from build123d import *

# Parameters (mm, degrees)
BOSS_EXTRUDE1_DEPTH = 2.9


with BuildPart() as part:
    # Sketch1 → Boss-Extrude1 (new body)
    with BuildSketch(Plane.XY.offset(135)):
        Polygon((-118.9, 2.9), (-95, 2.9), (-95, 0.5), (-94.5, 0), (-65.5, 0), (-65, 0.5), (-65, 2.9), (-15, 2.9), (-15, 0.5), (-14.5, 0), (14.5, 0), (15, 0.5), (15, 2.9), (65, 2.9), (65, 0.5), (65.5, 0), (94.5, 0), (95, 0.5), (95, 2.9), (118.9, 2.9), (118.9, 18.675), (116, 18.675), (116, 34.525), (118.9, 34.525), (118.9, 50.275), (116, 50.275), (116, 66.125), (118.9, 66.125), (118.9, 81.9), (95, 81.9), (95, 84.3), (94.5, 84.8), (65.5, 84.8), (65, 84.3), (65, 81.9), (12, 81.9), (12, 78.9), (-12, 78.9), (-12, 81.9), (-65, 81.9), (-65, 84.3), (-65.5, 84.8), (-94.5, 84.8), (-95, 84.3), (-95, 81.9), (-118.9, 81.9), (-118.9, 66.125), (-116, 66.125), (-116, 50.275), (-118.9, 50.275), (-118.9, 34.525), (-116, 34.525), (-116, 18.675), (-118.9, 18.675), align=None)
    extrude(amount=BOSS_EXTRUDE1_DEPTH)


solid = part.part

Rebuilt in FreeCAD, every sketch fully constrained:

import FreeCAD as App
import Part
import Sketcher
from FreeCAD import Vector

doc = App.newDocument("Part")
params = doc.addObject("Spreadsheet::Sheet", "Params")
for row, (alias, value) in enumerate([
    ("sketch1_width", "29 mm"),
    ("sketch1_width2", "50 mm"),
    ("sketch1_width3", "53 mm"),
    ("sketch1_width4", "24 mm"),
    ("sketch1_height", "3 mm"),
    ("pad1_length", "2.9 mm"),
], start=1):
    params.set(f"A{row}", alias)
    params.set(f"B{row}", "=" + value)
    params.setAlias(f"B{row}", alias)

body = doc.addObject("PartDesign::Body", "Body")

sketch1 = body.newObject("Sketcher::SketchObject", "Sketch")
sketch1.AttachmentSupport = (doc.getObject("XY_Plane"), [""])
sketch1.MapMode = "FlatFace"
sketch1.AttachmentOffset = App.Placement(Vector(0, 0, 135), App.Rotation())
sketch1.addGeometry(Part.LineSegment(Vector(-118.9, 2.9, 0), Vector(-95, 2.9, 0)), False)
sketch1.addGeometry(Part.LineSegment(Vector(-95, 2.9, 0), Vector(-95, 0.5, 0)), False)
sketch1.addGeometry(Part.LineSegment(Vector(-95, 0.5, 0), Vector(-94.5, 0, 0)), False)
sketch1.addGeometry(Part.LineSegment(Vector(-94.5, 0, 0), Vector(-65.5, 0, 0)), False)
sketch1.addGeometry(Part.LineSegment(Vector(-65.5, 0, 0), Vector(-65, 0.5, 0)), False)
sketch1.addGeometry(Part.LineSegment(Vector(-65, 0.5, 0), Vector(-65, 2.9, 0)), False)
sketch1.addGeometry(Part.LineSegment(Vector(-65, 2.9, 0), Vector(-15, 2.9, 0)), False)
sketch1.addGeometry(Part.LineSegment(Vector(-15, 2.9, 0), Vector(-15, 0.5, 0)), False)
sketch1.addGeometry(Part.LineSegment(Vector(-15, 0.5, 0), Vector(-14.5, 0, 0)), False)
sketch1.addGeometry(Part.LineSegment(Vector(-14.5, 0, 0), Vector(14.5, 0, 0)), False)
sketch1.addGeometry(Part.LineSegment(Vector(14.5, 0, 0), Vector(15, 0.5, 0)), False)
sketch1.addGeometry(Part.LineSegment(Vector(15, 0.5, 0), Vector(15, 2.9, 0)), False)
sketch1.addGeometry(Part.LineSegment(Vector(15, 2.9, 0), Vector(65, 2.9, 0)), False)
sketch1.addGeometry(Part.LineSegment(Vector(65, 2.9, 0), Vector(65, 0.5, 0)), False)
sketch1.addGeometry(Part.LineSegment(Vector(65, 0.5, 0), Vector(65.5, 0, 0)), False)
sketch1.addGeometry(Part.LineSegment(Vector(65.5, 0, 0), Vector(94.5, 0, 0)), False)
sketch1.addGeometry(Part.LineSegment(Vector(94.5, 0, 0), Vector(95, 0.5, 0)), False)
sketch1.addGeometry(Part.LineSegment(Vector(95, 0.5, 0), Vector(95, 2.9, 0)), False)
sketch1.addGeometry(Part.LineSegment(Vector(95, 2.9, 0), Vector(118.9, 2.9, 0)), False)
sketch1.addGeometry(Part.LineSegment(Vector(118.9, 2.9, 0), Vector(118.9, 18.7, 0)), False)
sketch1.addGeometry(Part.LineSegment(Vector(118.9, 18.7, 0), Vector(116, 18.7, 0)), False)
sketch1.addGeometry(Part.LineSegment(Vector(116, 18.7, 0), Vector(116, 34.5, 0)), False)
sketch1.addGeometry(Part.LineSegment(Vector(116, 34.5, 0), Vector(118.9, 34.5, 0)), False)
sketch1.addGeometry(Part.LineSegment(Vector(118.9, 34.5, 0), Vector(118.9, 50.3, 0)), False)
sketch1.addGeometry(Part.LineSegment(Vector(118.9, 50.3, 0), Vector(116, 50.3, 0)), False)
sketch1.addGeometry(Part.LineSegment(Vector(116, 50.3, 0), Vector(116, 66.1, 0)), False)
sketch1.addGeometry(Part.LineSegment(Vector(116, 66.1, 0), Vector(118.9, 66.1, 0)), False)
sketch1.addGeometry(Part.LineSegment(Vector(118.9, 66.1, 0), Vector(118.9, 81.9, 0)), False)
sketch1.addGeometry(Part.LineSegment(Vector(118.9, 81.9, 0), Vector(95, 81.9, 0)), False)
sketch1.addGeometry(Part.LineSegment(Vector(95, 81.9, 0), Vector(95, 84.3, 0)), False)
sketch1.addGeometry(Part.LineSegment(Vector(95, 84.3, 0), Vector(94.5, 84.8, 0)), False)
sketch1.addGeometry(Part.LineSegment(Vector(94.5, 84.8, 0), Vector(65.5, 84.8, 0)), False)
sketch1.addGeometry(Part.LineSegment(Vector(65.5, 84.8, 0), Vector(65, 84.3, 0)), False)
sketch1.addGeometry(Part.LineSegment(Vector(65, 84.3, 0), Vector(65, 81.9, 0)), False)
sketch1.addGeometry(Part.LineSegment(Vector(65, 81.9, 0), Vector(12, 81.9, 0)), False)
sketch1.addGeometry(Part.LineSegment(Vector(12, 81.9, 0), Vector(12, 78.9, 0)), False)
sketch1.addGeometry(Part.LineSegment(Vector(12, 78.9, 0), Vector(-12, 78.9, 0)), False)
sketch1.addGeometry(Part.LineSegment(Vector(-12, 78.9, 0), Vector(-12, 81.9, 0)), False)
sketch1.addGeometry(Part.LineSegment(Vector(-12, 81.9, 0), Vector(-65, 81.9, 0)), False)
sketch1.addGeometry(Part.LineSegment(Vector(-65, 81.9, 0), Vector(-65, 84.3, 0)), False)
sketch1.addGeometry(Part.LineSegment(Vector(-65, 84.3, 0), Vector(-65.5, 84.8, 0)), False)
sketch1.addGeometry(Part.LineSegment(Vector(-65.5, 84.8, 0), Vector(-94.5, 84.8, 0)), False)
sketch1.addGeometry(Part.LineSegment(Vector(-94.5, 84.8, 0), Vector(-95, 84.3, 0)), False)
sketch1.addGeometry(Part.LineSegment(Vector(-95, 84.3, 0), Vector(-95, 81.9, 0)), False)
sketch1.addGeometry(Part.LineSegment(Vector(-95, 81.9, 0), Vector(-118.9, 81.9, 0)), False)
sketch1.addGeometry(Part.LineSegment(Vector(-118.9, 81.9, 0), Vector(-118.9, 66.1, 0)), False)
sketch1.addGeometry(Part.LineSegment(Vector(-118.9, 66.1, 0), Vector(-116, 66.1, 0)), False)
sketch1.addGeometry(Part.LineSegment(Vector(-116, 66.1, 0), Vector(-116, 50.3, 0)), False)
sketch1.addGeometry(Part.LineSegment(Vector(-116, 50.3, 0), Vector(-118.9, 50.3, 0)), False)
sketch1.addGeometry(Part.LineSegment(Vector(-118.9, 50.3, 0), Vector(-118.9, 34.5, 0)), False)
sketch1.addGeometry(Part.LineSegment(Vector(-118.9, 34.5, 0), Vector(-116, 34.5, 0)), False)
sketch1.addGeometry(Part.LineSegment(Vector(-116, 34.5, 0), Vector(-116, 18.7, 0)), False)
sketch1.addGeometry(Part.LineSegment(Vector(-116, 18.7, 0), Vector(-118.9, 18.7, 0)), False)
sketch1.addGeometry(Part.LineSegment(Vector(-118.9, 18.7, 0), Vector(-118.9, 2.9, 0)), False)
sketch1.addConstraint(Sketcher.Constraint("Coincident", 0, 2, 1, 1))
sketch1.addConstraint(Sketcher.Constraint("Coincident", 1, 2, 2, 1))
sketch1.addConstraint(Sketcher.Constraint("Coincident", 2, 2, 3, 1))
sketch1.addConstraint(Sketcher.Constraint("Coincident", 3, 2, 4, 1))
sketch1.addConstraint(Sketcher.Constraint("Coincident", 4, 2, 5, 1))
sketch1.addConstraint(Sketcher.Constraint("Coincident", 5, 2, 6, 1))
sketch1.addConstraint(Sketcher.Constraint("Coincident", 6, 2, 7, 1))
sketch1.addConstraint(Sketcher.Constraint("Coincident", 7, 2, 8, 1))
sketch1.addConstraint(Sketcher.Constraint("Coincident", 8, 2, 9, 1))
sketch1.addConstraint(Sketcher.Constraint("Coincident", 9, 2, 10, 1))
sketch1.addConstraint(Sketcher.Constraint("Coincident", 10, 2, 11, 1))
sketch1.addConstraint(Sketcher.Constraint("Coincident", 11, 2, 12, 1))
sketch1.addConstraint(Sketcher.Constraint("Coincident", 12, 2, 13, 1))
sketch1.addConstraint(Sketcher.Constraint("Coincident", 13, 2, 14, 1))
sketch1.addConstraint(Sketcher.Constraint("Coincident", 14, 2, 15, 1))
sketch1.addConstraint(Sketcher.Constraint("Coincident", 15, 2, 16, 1))
sketch1.addConstraint(Sketcher.Constraint("Coincident", 16, 2, 17, 1))
sketch1.addConstraint(Sketcher.Constraint("Coincident", 17, 2, 18, 1))
sketch1.addConstraint(Sketcher.Constraint("Coincident", 18, 2, 19, 1))
sketch1.addConstraint(Sketcher.Constraint("Coincident", 19, 2, 20, 1))
sketch1.addConstraint(Sketcher.Constraint("Coincident", 20, 2, 21, 1))
sketch1.addConstraint(Sketcher.Constraint("Coincident", 21, 2, 22, 1))
sketch1.addConstraint(Sketcher.Constraint("Coincident", 22, 2, 23, 1))
sketch1.addConstraint(Sketcher.Constraint("Coincident", 23, 2, 24, 1))
sketch1.addConstraint(Sketcher.Constraint("Coincident", 24, 2, 25, 1))
sketch1.addConstraint(Sketcher.Constraint("Coincident", 25, 2, 26, 1))
sketch1.addConstraint(Sketcher.Constraint("Coincident", 26, 2, 27, 1))
sketch1.addConstraint(Sketcher.Constraint("Coincident", 27, 2, 28, 1))
sketch1.addConstraint(Sketcher.Constraint("Coincident", 28, 2, 29, 1))
sketch1.addConstraint(Sketcher.Constraint("Coincident", 29, 2, 30, 1))
sketch1.addConstraint(Sketcher.Constraint("Coincident", 30, 2, 31, 1))
sketch1.addConstraint(Sketcher.Constraint("Coincident", 31, 2, 32, 1))
sketch1.addConstraint(Sketcher.Constraint("Coincident", 32, 2, 33, 1))
sketch1.addConstraint(Sketcher.Constraint("Coincident", 33, 2, 34, 1))
sketch1.addConstraint(Sketcher.Constraint("Coincident", 34, 2, 35, 1))
sketch1.addConstraint(Sketcher.Constraint("Coincident", 35, 2, 36, 1))
sketch1.addConstraint(Sketcher.Constraint("Coincident", 36, 2, 37, 1))
sketch1.addConstraint(Sketcher.Constraint("Coincident", 37, 2, 38, 1))
sketch1.addConstraint(Sketcher.Constraint("Coincident", 38, 2, 39, 1))
sketch1.addConstraint(Sketcher.Constraint("Coincident", 39, 2, 40, 1))
sketch1.addConstraint(Sketcher.Constraint("Coincident", 40, 2, 41, 1))
sketch1.addConstraint(Sketcher.Constraint("Coincident", 41, 2, 42, 1))
sketch1.addConstraint(Sketcher.Constraint("Coincident", 42, 2, 43, 1))
sketch1.addConstraint(Sketcher.Constraint("Coincident", 43, 2, 44, 1))
sketch1.addConstraint(Sketcher.Constraint("Coincident", 44, 2, 45, 1))
sketch1.addConstraint(Sketcher.Constraint("Coincident", 45, 2, 46, 1))
sketch1.addConstraint(Sketcher.Constraint("Coincident", 46, 2, 47, 1))
sketch1.addConstraint(Sketcher.Constraint("Coincident", 47, 2, 48, 1))
sketch1.addConstraint(Sketcher.Constraint("Coincident", 48, 2, 49, 1))
sketch1.addConstraint(Sketcher.Constraint("Coincident", 49, 2, 50, 1))
sketch1.addConstraint(Sketcher.Constraint("Coincident", 50, 2, 51, 1))
sketch1.addConstraint(Sketcher.Constraint("Coincident", 51, 2, 52, 1))
sketch1.addConstraint(Sketcher.Constraint("Coincident", 52, 2, 53, 1))
sketch1.addConstraint(Sketcher.Constraint("Coincident", 53, 2, 0, 1))
sketch1.addConstraint(Sketcher.Constraint("Horizontal", 0))
sketch1.addConstraint(Sketcher.Constraint("Vertical", 1))
sketch1.addConstraint(Sketcher.Constraint("Horizontal", 3))
sketch1.addConstraint(Sketcher.Constraint("Vertical", 5))
sketch1.addConstraint(Sketcher.Constraint("Horizontal", 6))
sketch1.addConstraint(Sketcher.Constraint("Vertical", 7))
sketch1.addConstraint(Sketcher.Constraint("Horizontal", 9))
sketch1.addConstraint(Sketcher.Constraint("Vertical", 11))
sketch1.addConstraint(Sketcher.Constraint("Horizontal", 12))
sketch1.addConstraint(Sketcher.Constraint("Vertical", 13))
sketch1.addConstraint(Sketcher.Constraint("Horizontal", 15))
sketch1.addConstraint(Sketcher.Constraint("Vertical", 17))
sketch1.addConstraint(Sketcher.Constraint("Horizontal", 18))
sketch1.addConstraint(Sketcher.Constraint("Vertical", 19))
sketch1.addConstraint(Sketcher.Constraint("Horizontal", 20))
sketch1.addConstraint(Sketcher.Constraint("Vertical", 21))
sketch1.addConstraint(Sketcher.Constraint("Horizontal", 22))
sketch1.addConstraint(Sketcher.Constraint("Vertical", 23))
sketch1.addConstraint(Sketcher.Constraint("Horizontal", 24))
sketch1.addConstraint(Sketcher.Constraint("Vertical", 25))
sketch1.addConstraint(Sketcher.Constraint("Horizontal", 26))
sketch1.addConstraint(Sketcher.Constraint("Vertical", 27))
sketch1.addConstraint(Sketcher.Constraint("Horizontal", 28))
sketch1.addConstraint(Sketcher.Constraint("Vertical", 29))
sketch1.addConstraint(Sketcher.Constraint("Horizontal", 31))
sketch1.addConstraint(Sketcher.Constraint("Vertical", 33))
sketch1.addConstraint(Sketcher.Constraint("Horizontal", 34))
sketch1.addConstraint(Sketcher.Constraint("Vertical", 35))
sketch1.addConstraint(Sketcher.Constraint("Horizontal", 36))
sketch1.addConstraint(Sketcher.Constraint("Vertical", 37))
sketch1.addConstraint(Sketcher.Constraint("Horizontal", 38))
sketch1.addConstraint(Sketcher.Constraint("Vertical", 39))
sketch1.addConstraint(Sketcher.Constraint("Horizontal", 41))
sketch1.addConstraint(Sketcher.Constraint("Vertical", 43))
sketch1.addConstraint(Sketcher.Constraint("Horizontal", 44))
sketch1.addConstraint(Sketcher.Constraint("Vertical", 45))
sketch1.addConstraint(Sketcher.Constraint("Horizontal", 46))
sketch1.addConstraint(Sketcher.Constraint("Vertical", 47))
sketch1.addConstraint(Sketcher.Constraint("Horizontal", 48))
sketch1.addConstraint(Sketcher.Constraint("Vertical", 49))
sketch1.addConstraint(Sketcher.Constraint("Horizontal", 50))
sketch1.addConstraint(Sketcher.Constraint("Vertical", 51))
sketch1.addConstraint(Sketcher.Constraint("Horizontal", 52))
sketch1.addConstraint(Sketcher.Constraint("Vertical", 53))
sketch1.addConstraint(Sketcher.Constraint("Symmetric", 8, 2, 9, 2, -1, 1))
sketch1.addConstraint(Sketcher.Constraint("Symmetric", 3, 2, 14, 2, -1, 1))
sketch1.addConstraint(Sketcher.Constraint("Symmetric", 7, 2, 10, 2, -2))
sketch1.addConstraint(Sketcher.Constraint("Symmetric", 5, 2, 12, 2, -2))
sketch1.addConstraint(Sketcher.Constraint("Symmetric", 2, 2, 15, 2, -2))
sketch1.addConstraint(Sketcher.Constraint("Symmetric", 1, 2, 16, 2, -2))
sketch1.addConstraint(Sketcher.Constraint("Symmetric", 34, 2, 37, 2, -2))
sketch1.addConstraint(Sketcher.Constraint("Symmetric", 32, 2, 39, 2, -2))
sketch1.addConstraint(Sketcher.Constraint("Symmetric", 31, 2, 40, 2, -2))
sketch1.addConstraint(Sketcher.Constraint("Symmetric", 29, 2, 42, 2, -2))
sketch1.addConstraint(Sketcher.Constraint("Symmetric", 27, 2, 44, 2, -2))
sketch1.addConstraint(Sketcher.Constraint("Symmetric", 25, 2, 46, 2, -2))
sketch1.addConstraint(Sketcher.Constraint("Symmetric", 23, 2, 48, 2, -2))
sketch1.addConstraint(Sketcher.Constraint("Symmetric", 21, 2, 50, 2, -2))
sketch1.addConstraint(Sketcher.Constraint("Symmetric", 19, 2, 52, 2, -2))
sketch1.addConstraint(Sketcher.Constraint("Perpendicular", 2, 4))
sketch1.addConstraint(Sketcher.Constraint("Perpendicular", 4, 8))
sketch1.addConstraint(Sketcher.Constraint("Perpendicular", 8, 10))
sketch1.addConstraint(Sketcher.Constraint("Perpendicular", 10, 14))
sketch1.addConstraint(Sketcher.Constraint("Perpendicular", 16, 30))
sketch1.addConstraint(Sketcher.Constraint("Perpendicular", 30, 32))
sketch1.addConstraint(Sketcher.Constraint("Perpendicular", 40, 42))
sketch1.addConstraint(Sketcher.Constraint("Horizontal", 1, 2, 4, 2))
sketch1.addConstraint(Sketcher.Constraint("Horizontal", 0, 2, 5, 2))
sketch1.addConstraint(Sketcher.Constraint("Horizontal", 4, 2, 7, 2))
sketch1.addConstraint(Sketcher.Constraint("Horizontal", 12, 2, 17, 2))
sketch1.addConstraint(Sketcher.Constraint("Horizontal", 29, 2, 32, 2))
sketch1.addConstraint(Sketcher.Constraint("Horizontal", 28, 2, 33, 2))
sketch1.addConstraint(Sketcher.Constraint("Vertical", 19, 2, 22, 2))
sketch1.addConstraint(Sketcher.Constraint("Vertical", 21, 2, 24, 2))
sketch1.addConstraint(Sketcher.Constraint("Vertical", 23, 2, 26, 2))
sketch1.addConstraint(Sketcher.Constraint("Vertical", 17, 2, 28, 2))
sketch1.addConstraint(Sketcher.Constraint("Vertical", 15, 2, 30, 2))
sketch1.addConstraint(Sketcher.Constraint("Vertical", 14, 2, 31, 2))
sketch1.addConstraint(Sketcher.Constraint("Equal", 3, 9))
sketch1.addConstraint(Sketcher.Constraint("Equal", 21, 25))
sketch1.addConstraint(Sketcher.Constraint("Equal", 19, 27))
sketch1.addConstraint(Sketcher.Constraint("Equal", 17, 29))
sketch1.addConstraint(Sketcher.Constraint("DistanceX", 3, 1, 3, 2, 29.0))
sketch1.addConstraint(Sketcher.Constraint("DistanceX", 6, 1, 6, 2, 50.0))
sketch1.addConstraint(Sketcher.Constraint("DistanceX", 34, 2, 34, 1, 53.0))
sketch1.addConstraint(Sketcher.Constraint("DistanceX", 36, 2, 36, 1, 24.0))
sketch1.addConstraint(Sketcher.Constraint("DistanceY", 35, 2, 35, 1, 3.0))
sketch1.addConstraint(Sketcher.Constraint("DistanceX", 0, 1, 0, 2, 23.9))
sketch1.addConstraint(Sketcher.Constraint("DistanceX", 20, 2, 20, 1, 2.9))
sketch1.addConstraint(Sketcher.Constraint("DistanceY", 1, 2, 1, 1, 2.4))
sketch1.addConstraint(Sketcher.Constraint("DistanceY", 11, 2, 34, 2, 79.0))
sketch1.addConstraint(Sketcher.Constraint("DistanceY", 21, 1, 21, 2, 15.85))
sketch1.addConstraint(Sketcher.Constraint("DistanceY", 23, 1, 23, 2, 15.75))
sketch1.setExpression("Constraints[136]", "Params.sketch1_width")
sketch1.setExpression("Constraints[137]", "Params.sketch1_width2")
sketch1.setExpression("Constraints[138]", "Params.sketch1_width3")
sketch1.setExpression("Constraints[139]", "Params.sketch1_width4")
sketch1.setExpression("Constraints[140]", "Params.sketch1_height")
pad1 = body.newObject("PartDesign::Pad", "Pad")
pad1.Profile = sketch1
pad1.setExpression("Length", "Params.pad1_length")

doc.recompute()
